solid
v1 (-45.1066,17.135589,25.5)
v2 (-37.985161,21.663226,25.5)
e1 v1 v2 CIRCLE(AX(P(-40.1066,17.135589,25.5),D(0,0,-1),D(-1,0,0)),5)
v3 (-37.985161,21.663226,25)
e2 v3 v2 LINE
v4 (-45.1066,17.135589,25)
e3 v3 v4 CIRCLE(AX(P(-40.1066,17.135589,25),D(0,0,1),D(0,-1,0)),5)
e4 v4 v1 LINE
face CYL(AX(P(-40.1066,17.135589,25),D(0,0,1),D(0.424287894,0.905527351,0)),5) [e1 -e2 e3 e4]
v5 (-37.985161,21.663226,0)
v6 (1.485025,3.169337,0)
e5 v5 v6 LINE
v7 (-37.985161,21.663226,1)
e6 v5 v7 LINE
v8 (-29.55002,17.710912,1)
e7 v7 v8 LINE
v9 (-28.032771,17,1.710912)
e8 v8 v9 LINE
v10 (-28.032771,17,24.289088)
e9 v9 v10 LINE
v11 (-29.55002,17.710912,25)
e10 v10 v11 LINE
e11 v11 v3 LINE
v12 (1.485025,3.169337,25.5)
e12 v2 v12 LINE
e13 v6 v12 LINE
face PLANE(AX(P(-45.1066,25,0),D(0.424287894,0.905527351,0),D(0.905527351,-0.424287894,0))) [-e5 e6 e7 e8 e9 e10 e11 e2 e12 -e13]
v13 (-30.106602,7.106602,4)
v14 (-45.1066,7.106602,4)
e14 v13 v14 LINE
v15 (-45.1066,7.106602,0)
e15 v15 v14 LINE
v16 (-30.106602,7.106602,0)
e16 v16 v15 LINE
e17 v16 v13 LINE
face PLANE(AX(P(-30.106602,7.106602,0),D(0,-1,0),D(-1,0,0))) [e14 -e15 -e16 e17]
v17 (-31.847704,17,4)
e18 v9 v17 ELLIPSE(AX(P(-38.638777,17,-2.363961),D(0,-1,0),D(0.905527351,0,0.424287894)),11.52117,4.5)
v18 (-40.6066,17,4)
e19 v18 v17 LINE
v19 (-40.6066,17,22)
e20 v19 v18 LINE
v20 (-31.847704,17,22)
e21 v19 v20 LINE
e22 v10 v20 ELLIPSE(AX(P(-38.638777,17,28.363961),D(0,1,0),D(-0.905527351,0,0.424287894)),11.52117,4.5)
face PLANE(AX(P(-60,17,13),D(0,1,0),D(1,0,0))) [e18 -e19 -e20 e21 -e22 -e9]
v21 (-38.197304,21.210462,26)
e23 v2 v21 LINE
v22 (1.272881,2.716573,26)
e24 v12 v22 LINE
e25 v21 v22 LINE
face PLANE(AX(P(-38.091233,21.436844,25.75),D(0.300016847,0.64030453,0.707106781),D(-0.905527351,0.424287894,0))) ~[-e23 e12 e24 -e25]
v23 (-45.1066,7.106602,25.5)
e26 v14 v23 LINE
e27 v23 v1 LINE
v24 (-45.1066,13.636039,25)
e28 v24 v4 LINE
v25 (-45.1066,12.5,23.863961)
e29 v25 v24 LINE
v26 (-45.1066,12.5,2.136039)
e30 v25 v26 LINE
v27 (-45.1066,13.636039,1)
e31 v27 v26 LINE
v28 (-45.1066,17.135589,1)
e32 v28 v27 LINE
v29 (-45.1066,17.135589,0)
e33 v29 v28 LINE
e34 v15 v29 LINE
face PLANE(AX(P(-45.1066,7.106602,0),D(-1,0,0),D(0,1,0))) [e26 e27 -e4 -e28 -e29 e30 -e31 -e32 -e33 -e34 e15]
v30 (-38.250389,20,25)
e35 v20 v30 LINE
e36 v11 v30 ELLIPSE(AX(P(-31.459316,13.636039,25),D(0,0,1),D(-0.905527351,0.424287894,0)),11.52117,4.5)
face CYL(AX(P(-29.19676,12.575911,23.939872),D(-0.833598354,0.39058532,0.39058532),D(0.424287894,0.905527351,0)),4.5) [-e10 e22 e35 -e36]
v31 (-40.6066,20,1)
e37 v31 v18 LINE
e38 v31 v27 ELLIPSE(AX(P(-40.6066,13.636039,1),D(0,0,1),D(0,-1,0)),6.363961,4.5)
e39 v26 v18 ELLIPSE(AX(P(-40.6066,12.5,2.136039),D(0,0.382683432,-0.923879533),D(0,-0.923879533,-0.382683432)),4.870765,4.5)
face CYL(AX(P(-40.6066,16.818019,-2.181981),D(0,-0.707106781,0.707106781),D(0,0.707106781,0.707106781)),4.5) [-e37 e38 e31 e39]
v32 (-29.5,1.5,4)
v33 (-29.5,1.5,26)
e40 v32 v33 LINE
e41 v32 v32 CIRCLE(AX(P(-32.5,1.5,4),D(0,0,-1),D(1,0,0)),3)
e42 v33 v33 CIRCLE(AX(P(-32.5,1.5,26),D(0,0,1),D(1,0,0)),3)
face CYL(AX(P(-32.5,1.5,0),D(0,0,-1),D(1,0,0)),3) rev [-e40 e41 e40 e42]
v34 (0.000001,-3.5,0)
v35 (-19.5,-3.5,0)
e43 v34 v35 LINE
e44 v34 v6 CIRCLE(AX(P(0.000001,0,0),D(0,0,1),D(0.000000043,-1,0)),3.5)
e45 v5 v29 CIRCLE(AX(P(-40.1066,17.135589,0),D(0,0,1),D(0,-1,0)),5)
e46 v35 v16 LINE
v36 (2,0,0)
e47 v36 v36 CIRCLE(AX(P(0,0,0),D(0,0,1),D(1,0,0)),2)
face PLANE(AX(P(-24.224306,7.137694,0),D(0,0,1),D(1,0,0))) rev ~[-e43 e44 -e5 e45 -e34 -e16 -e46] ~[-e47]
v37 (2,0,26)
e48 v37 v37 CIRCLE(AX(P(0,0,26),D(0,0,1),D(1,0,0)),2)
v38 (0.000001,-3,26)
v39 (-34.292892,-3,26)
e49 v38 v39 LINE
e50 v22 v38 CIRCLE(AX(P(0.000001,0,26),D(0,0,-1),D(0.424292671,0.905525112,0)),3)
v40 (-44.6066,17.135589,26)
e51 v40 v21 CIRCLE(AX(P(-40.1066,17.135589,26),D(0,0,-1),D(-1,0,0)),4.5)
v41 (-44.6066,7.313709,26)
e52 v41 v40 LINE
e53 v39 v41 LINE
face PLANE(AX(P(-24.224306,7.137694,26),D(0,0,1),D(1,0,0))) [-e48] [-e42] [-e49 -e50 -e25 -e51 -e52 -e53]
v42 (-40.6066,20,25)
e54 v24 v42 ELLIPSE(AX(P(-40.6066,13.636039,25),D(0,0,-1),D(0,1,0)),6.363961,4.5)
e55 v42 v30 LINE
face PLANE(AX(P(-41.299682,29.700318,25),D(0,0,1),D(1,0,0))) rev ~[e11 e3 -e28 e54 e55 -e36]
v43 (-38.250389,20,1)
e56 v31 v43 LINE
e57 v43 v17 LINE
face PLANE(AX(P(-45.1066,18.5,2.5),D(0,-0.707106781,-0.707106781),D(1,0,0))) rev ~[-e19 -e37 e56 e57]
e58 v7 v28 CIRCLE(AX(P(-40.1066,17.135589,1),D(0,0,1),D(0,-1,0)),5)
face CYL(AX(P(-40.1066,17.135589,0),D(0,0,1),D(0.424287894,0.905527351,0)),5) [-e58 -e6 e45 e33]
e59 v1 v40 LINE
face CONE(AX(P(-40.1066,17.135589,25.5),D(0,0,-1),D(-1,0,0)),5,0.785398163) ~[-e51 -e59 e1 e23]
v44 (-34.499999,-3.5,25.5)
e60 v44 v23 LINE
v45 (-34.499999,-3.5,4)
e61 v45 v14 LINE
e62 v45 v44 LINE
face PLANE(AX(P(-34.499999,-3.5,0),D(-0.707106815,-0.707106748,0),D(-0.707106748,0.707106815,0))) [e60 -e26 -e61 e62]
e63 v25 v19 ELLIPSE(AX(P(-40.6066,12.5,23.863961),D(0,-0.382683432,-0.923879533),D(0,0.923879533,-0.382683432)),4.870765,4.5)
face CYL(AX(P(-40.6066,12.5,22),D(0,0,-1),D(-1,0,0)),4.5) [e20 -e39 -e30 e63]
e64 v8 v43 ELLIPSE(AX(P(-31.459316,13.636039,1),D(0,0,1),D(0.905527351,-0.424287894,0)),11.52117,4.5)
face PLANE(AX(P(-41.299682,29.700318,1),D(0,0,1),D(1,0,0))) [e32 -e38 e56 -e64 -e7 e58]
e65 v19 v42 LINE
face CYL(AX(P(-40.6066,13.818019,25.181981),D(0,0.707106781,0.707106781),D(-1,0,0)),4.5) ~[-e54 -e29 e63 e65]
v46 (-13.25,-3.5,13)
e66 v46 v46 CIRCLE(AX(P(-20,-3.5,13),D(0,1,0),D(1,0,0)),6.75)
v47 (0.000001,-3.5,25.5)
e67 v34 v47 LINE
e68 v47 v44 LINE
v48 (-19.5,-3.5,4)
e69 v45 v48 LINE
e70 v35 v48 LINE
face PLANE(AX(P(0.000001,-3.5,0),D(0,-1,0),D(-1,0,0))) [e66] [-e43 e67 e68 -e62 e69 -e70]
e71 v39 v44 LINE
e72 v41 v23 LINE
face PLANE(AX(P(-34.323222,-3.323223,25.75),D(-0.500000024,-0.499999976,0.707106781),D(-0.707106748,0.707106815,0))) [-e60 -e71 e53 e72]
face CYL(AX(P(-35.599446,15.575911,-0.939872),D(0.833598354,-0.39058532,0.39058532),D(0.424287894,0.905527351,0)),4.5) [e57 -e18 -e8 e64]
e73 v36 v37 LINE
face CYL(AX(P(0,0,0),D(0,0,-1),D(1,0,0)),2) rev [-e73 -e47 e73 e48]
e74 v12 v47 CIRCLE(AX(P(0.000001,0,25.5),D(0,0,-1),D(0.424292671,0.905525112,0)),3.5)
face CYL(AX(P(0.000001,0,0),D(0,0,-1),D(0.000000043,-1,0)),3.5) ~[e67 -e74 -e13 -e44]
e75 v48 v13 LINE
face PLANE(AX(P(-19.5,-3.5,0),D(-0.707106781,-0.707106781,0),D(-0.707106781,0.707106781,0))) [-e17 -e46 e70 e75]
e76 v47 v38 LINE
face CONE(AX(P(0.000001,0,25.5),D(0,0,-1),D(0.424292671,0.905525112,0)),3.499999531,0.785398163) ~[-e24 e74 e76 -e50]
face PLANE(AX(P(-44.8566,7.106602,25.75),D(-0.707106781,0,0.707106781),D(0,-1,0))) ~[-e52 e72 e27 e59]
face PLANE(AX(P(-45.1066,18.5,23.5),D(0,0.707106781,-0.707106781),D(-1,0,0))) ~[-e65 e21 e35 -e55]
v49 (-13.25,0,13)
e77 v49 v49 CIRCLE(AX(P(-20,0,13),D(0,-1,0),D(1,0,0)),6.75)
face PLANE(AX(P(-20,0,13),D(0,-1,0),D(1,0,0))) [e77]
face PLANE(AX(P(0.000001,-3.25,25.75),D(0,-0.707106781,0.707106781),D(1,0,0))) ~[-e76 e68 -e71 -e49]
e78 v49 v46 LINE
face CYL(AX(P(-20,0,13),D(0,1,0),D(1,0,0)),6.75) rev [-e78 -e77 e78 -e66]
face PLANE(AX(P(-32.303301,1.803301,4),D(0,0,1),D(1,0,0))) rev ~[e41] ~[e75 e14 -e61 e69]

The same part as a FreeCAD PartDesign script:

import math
import FreeCAD as App
import Part
import Sketcher

V = App.Vector
Q = App.Units.Quantity


def edges_at(feature, points):
    """Names of the edges that pass closest to the given points."""
    edges = feature.Shape.Edges
    near = lambda p: min(range(len(edges)), key=lambda i: edges[i].distToShape(Part.Vertex(*p))[0])
    return sorted({f"Edge{near(p) + 1}" for p in points})


def add_polygon(sketch, points):
    """Adds a closed chain of lines whose ends are joined by coincident constraints."""
    first, n = sketch.GeometryCount, len(points)
    for a, b in zip(points, points[1:] + points[:1]):
        sketch.addGeometry(Part.LineSegment(App.Vector(*a, 0), App.Vector(*b, 0)), False)
    for i in range(n):
        sketch.addConstraint(Sketcher.Constraint("Coincident", first + i, 2, first + (i + 1) % n, 1))

doc = App.newDocument("Part")
params = doc.addObject("Spreadsheet::Sheet", "Params")
for row, (alias, value) in enumerate([
    ("sketch1_diameter", "4 mm"),
    ("sketch1_radius", "3.5 mm"),
    ("sketch1_length", "15 mm"),
    ("sketch1_width", "34.5 mm"),
    ("pad1_length", "26 mm"),
    ("sketch2_width", "50 mm"),
    ("sketch2_height", "38 mm"),
    ("pocket1_length", "12 mm"),
    ("pocket1_length2", "12 mm"),
    ("sketch3_width", "15 mm"),
    ("sketch3_length", "15 mm"),
    ("pocket2_length", "4 mm"),
    ("chamfer_size", "3 mm"),
    ("sketch4_diameter", "6 mm"),
    ("pocket3_length", "26 mm"),
    ("sketch5_diameter", "13.5 mm"),
    ("pocket4_length", "5 mm"),
    ("fillet_radius", "4.5 mm"),
    ("fillet2_radius", "5 mm"),
    ("chamfer2_size", "0.5 mm"),
], start=1):
    params.set(f"A{row}", alias)
    params.set(f"B{row}", "=" + value)
    params.setAlias(f"B{row}", alias)

body = doc.addObject("PartDesign::Body", "Body")

# Sketch on XY plane
sketch1 = body.newObject("Sketcher::SketchObject", "Sketch")
sketch1.AttachmentSupport = (doc.getObject("XY_Plane"), [""])
sketch1.MapMode = "FlatFace"
sketch1.addGeometry(Part.ArcOfCircle(Part.Circle(V(0.000001, 0, 0), V(0, 0, 1), 3.5), math.radians(-89.999998), math.radians(64.8941)), False)
sketch1.addGeometry(Part.LineSegment(V(1.485025, 3.169337, 0), V(-45.1066, 25, 0)), False)
sketch1.addGeometry(Part.LineSegment(V(-45.1066, 25, 0), V(-45.1066, 7.106602, 0)), False)
sketch1.addGeometry(Part.LineSegment(V(-45.1066, 7.106602, 0), V(-34.499999, -3.5, 0)), False)
sketch1.addGeometry(Part.LineSegment(V(-34.499999, -3.5, 0), V(0.000001, -3.5, 0)), False)
sketch1.addGeometry(Part.Circle(V(0, 0, 0), V(0, 0, 1), 2), False)
sketch1.addConstraint(Sketcher.Constraint("Coincident", 0, 2, 1, 1))
sketch1.addConstraint(Sketcher.Constraint("Coincident", 1, 2, 2, 1))
sketch1.addConstraint(Sketcher.Constraint("Coincident", 2, 2, 3, 1))
sketch1.addConstraint(Sketcher.Constraint("Coincident", 3, 2, 4, 1))
sketch1.addConstraint(Sketcher.Constraint("Tangent", 4, 2, 0, 1))
sketch1.addConstraint(Sketcher.Constraint("Vertical", 2))
sketch1.addConstraint(Sketcher.Constraint("Horizontal", 4))
sketch1.addConstraint(Sketcher.Constraint("Coincident", 0, 3, -1, 1))
sketch1.addConstraint(Sketcher.Constraint("Coincident", 5, 3, -1, 1))
sketch1.addConstraint(Sketcher.Constraint("Diameter", 5, Q("4 mm")))
sketch1.addConstraint(Sketcher.Constraint("Radius", 0, Q("3.5 mm")))
sketch1.addConstraint(Sketcher.Constraint("Angle", 3, Q("-45.000003 deg")))
sketch1.addConstraint(Sketcher.Constraint("Distance", 3, Q("15 mm")))
sketch1.addConstraint(Sketcher.Constraint("DistanceX", 4, 1, 4, 2, Q("34.5 mm")))
sketch1.addConstraint(Sketcher.Constraint("DistanceY", -1, 1, 1, 2, Q("25 mm")))
sketch1.addConstraint(Sketcher.Constraint("Distance", 1, Q("51.452477 mm")))
sketch1.setExpression("Constraints[9]", "Params.sketch1_diameter")
sketch1.setExpression("Constraints[10]", "Params.sketch1_radius")
sketch1.setExpression("Constraints[12]", "Params.sketch1_length")
sketch1.setExpression("Constraints[13]", "Params.sketch1_width")
pad1 = body.newObject("PartDesign::Pad", "Pad")
pad1.Profile = sketch1
pad1.setExpression("Length", "Params.pad1_length")

# Sketch on XY plane
sketch2 = body.newObject("Sketcher::SketchObject", "Sketch001")
sketch2.AttachmentSupport = (doc.getObject("XY_Plane"), [""])
sketch2.MapMode = "FlatFace"
sketch2.AttachmentOffset = App.Placement(V(0, 0, 13), App.Rotation())
add_polygon(sketch2, [(-60, 17), (-10, 17), (-60, 55)])  # lines 0-2
sketch2.addConstraint(Sketcher.Constraint("Horizontal", 0))
sketch2.addConstraint(Sketcher.Constraint("Vertical", 2))
sketch2.addConstraint(Sketcher.Constraint("DistanceX", 0, 1, 0, 2, Q("50 mm")))
sketch2.addConstraint(Sketcher.Constraint("DistanceY", 2, 2, 2, 1, Q("38 mm")))
sketch2.addConstraint(Sketcher.Constraint("DistanceX", 0, 2, -1, 1, Q("10 mm")))
sketch2.addConstraint(Sketcher.Constraint("DistanceY", -1, 1, 0, 2, Q("17 mm")))
sketch2.setExpression("Constraints[5]", "Params.sketch2_width")
sketch2.setExpression("Constraints[6]", "Params.sketch2_height")
pocket1 = body.newObject("PartDesign::Pocket", "Pocket")
pocket1.Profile = sketch2
pocket1.Type = "TwoLengths"
pocket1.setExpression("Length", "Params.pocket1_length")
pocket1.setExpression("Length2", "Params.pocket1_length2")

# Sketch on XY plane
sketch3 = body.newObject("Sketcher::SketchObject", "Sketch002")
sketch3.AttachmentSupport = (doc.getObject("XY_Plane"), [""])
sketch3.MapMode = "FlatFace"
add_polygon(sketch3, [(-19.5, -3.5), (-30.106602, 7.106602), (-45.106602, 7.106602), (-34.5, -3.5)])  # lines 0-3
sketch3.addConstraint(Sketcher.Constraint("Horizontal", 1))
sketch3.addConstraint(Sketcher.Constraint("Horizontal", 3))
sketch3.addConstraint(Sketcher.Constraint("Parallel", 0, 2))
sketch3.addConstraint(Sketcher.Constraint("DistanceX", 1, 2, 1, 1, Q("15 mm")))
sketch3.addConstraint(Sketcher.Constraint("Angle", 0, Q("135 deg")))
sketch3.addConstraint(Sketcher.Constraint("Distance", 0, Q("15 mm")))
sketch3.addConstraint(Sketcher.Constraint("DistanceX", 2, 2, -1, 1, Q("34.5 mm")))
sketch3.addConstraint(Sketcher.Constraint("DistanceY", 2, 2, -1, 1, Q("3.5 mm")))
sketch3.setExpression("Constraints[7]", "Params.sketch3_width")
sketch3.setExpression("Constraints[9]", "Params.sketch3_length")
pocket2 = body.newObject("PartDesign::Pocket", "Pocket001")
pocket2.Profile = sketch3
pocket2.setExpression("Length", "Params.pocket2_length")
pocket2.Reversed = True
doc.recompute()

chamfer = body.newObject("PartDesign::Chamfer", "Chamfer")
chamfer.Base = (pocket2, edges_at(pocket2, [(-36.57, 17, 1), (-36.57, 17, 25)]))
chamfer.setExpression("Size", "Params.chamfer_size")

# Sketch on XY plane
sketch4 = body.newObject("Sketcher::SketchObject", "Sketch003")
sketch4.AttachmentSupport = (doc.getObject("XY_Plane"), [""])
sketch4.MapMode = "FlatFace"
sketch4.addGeometry(Part.Circle(V(-32.5, 1.5, 0), V(0, 0, 1), 3), False)
sketch4.addConstraint(Sketcher.Constraint("Diameter", 0, Q("6 mm")))
sketch4.addConstraint(Sketcher.Constraint("DistanceX", 0, 3, -1, 1, Q("32.5 mm")))
sketch4.addConstraint(Sketcher.Constraint("DistanceY", -1, 1, 0, 3, Q("1.5 mm")))
sketch4.setExpression("Constraints[0]", "Params.sketch4_diameter")
pocket3 = body.newObject("PartDesign::Pocket", "Pocket002")
pocket3.Profile = sketch4
pocket3.setExpression("Length", "Params.pocket3_length")
pocket3.Reversed = True

# Sketch on XZ plane
sketch5 = body.newObject("Sketcher::SketchObject", "Sketch004")
sketch5.AttachmentSupport = (doc.getObject("XZ_Plane"), [""])
sketch5.MapMode = "FlatFace"
sketch5.addGeometry(Part.Circle(V(-20, 13, 0), V(0, 0, 1), 6.75), False)
sketch5.addConstraint(Sketcher.Constraint("Diameter", 0, Q("13.5 mm")))
sketch5.addConstraint(Sketcher.Constraint("DistanceX", 0, 3, -1, 1, Q("20 mm")))
sketch5.addConstraint(Sketcher.Constraint("DistanceY", -1, 1, 0, 3, Q("13 mm")))
sketch5.setExpression("Constraints[0]", "Params.sketch5_diameter")
pocket4 = body.newObject("PartDesign::Pocket", "Pocket003")
pocket4.Profile = sketch5
pocket4.setExpression("Length", "Params.pocket4_length")
pocket4.Reversed = True
doc.recompute()

fillet = body.newObject("PartDesign::Fillet", "Fillet")
fillet.Base = (pocket4, edges_at(pocket4, [
    (-45.107, 17, 13),
    (-45.107, 18.5, 2.5),
    (-45.107, 18.5, 23.5),
    (-31.234, 18.5, 23.5),
    (-31.234, 18.5, 2.5),
]))
fillet.setExpression("Radius", "Params.fillet_radius")
doc.recompute()

fillet2 = body.newObject("PartDesign::Fillet", "Fillet001")
fillet2.Base = (fillet, edges_at(fillet, [(-45.107, 25, 0.5), (-45.107, 25, 25.5)]))
fillet2.setExpression("Radius", "Params.fillet2_radius")
doc.recompute()

chamfer2 = body.newObject("PartDesign::Chamfer", "Chamfer001")
chamfer2.Base = (fillet2, edges_at(fillet2, [(-39.803, 1.803, 26), (-18.25, 12.416, 26)]))
chamfer2.setExpression("Size", "Params.chamfer2_size")

doc.recompute()
